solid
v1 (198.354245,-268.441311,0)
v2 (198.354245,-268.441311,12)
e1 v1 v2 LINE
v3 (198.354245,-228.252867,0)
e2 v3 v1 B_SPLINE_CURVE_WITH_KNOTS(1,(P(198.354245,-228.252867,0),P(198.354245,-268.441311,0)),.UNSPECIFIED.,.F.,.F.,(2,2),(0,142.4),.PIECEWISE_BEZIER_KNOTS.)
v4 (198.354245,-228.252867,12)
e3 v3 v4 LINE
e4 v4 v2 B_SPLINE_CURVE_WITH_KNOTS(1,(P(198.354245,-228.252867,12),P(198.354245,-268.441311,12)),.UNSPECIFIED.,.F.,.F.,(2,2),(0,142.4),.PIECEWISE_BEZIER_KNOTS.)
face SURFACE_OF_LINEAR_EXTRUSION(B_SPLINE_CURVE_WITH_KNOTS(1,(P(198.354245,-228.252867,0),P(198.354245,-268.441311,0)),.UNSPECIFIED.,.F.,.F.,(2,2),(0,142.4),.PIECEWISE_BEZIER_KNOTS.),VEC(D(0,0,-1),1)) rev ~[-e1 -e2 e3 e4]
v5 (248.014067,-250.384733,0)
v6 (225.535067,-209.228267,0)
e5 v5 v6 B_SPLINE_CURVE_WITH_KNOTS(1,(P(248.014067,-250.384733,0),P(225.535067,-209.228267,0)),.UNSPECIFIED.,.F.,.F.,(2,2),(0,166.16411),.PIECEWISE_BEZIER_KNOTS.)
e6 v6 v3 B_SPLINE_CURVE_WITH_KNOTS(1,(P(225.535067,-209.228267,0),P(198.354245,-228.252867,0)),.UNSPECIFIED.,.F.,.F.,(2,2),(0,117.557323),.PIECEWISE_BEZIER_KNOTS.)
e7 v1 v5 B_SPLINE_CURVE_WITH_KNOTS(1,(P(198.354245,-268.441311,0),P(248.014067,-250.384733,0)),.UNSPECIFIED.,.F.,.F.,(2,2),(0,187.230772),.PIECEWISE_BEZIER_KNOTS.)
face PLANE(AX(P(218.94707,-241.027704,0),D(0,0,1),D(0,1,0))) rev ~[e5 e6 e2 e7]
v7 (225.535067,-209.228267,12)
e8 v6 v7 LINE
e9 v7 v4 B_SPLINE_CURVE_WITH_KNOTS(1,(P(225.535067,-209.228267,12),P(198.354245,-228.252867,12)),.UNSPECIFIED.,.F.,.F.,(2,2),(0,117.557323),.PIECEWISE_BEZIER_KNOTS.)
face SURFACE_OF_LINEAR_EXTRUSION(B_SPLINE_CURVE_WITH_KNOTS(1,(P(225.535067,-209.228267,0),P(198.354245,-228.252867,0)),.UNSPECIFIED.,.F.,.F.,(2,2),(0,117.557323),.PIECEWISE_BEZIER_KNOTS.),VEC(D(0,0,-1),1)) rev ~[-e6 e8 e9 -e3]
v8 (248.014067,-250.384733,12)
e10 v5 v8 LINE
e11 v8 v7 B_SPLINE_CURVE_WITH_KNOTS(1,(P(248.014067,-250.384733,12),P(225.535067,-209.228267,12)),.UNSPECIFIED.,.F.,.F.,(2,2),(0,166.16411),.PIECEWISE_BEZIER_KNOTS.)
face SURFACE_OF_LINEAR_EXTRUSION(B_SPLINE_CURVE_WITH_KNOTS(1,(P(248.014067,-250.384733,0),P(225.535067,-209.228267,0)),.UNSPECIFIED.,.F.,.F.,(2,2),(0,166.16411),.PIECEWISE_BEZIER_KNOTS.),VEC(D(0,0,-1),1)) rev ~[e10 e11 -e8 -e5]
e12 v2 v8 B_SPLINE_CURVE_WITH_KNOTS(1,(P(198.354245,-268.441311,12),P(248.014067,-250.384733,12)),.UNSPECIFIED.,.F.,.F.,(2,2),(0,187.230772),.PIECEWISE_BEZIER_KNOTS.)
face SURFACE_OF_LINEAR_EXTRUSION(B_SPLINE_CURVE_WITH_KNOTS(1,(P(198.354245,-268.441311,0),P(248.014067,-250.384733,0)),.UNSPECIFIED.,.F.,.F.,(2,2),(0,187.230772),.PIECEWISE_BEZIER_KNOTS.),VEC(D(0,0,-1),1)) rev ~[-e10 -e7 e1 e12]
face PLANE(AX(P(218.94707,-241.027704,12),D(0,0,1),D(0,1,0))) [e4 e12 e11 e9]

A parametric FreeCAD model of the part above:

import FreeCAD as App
import Part
import Sketcher

V = App.Vector

doc = App.newDocument("Part")
body = doc.addObject("PartDesign::Body", "Body")

sketch1 = body.newObject("Sketcher::SketchObject", "Sketch")
sketch1.AttachmentSupport = (doc.getObject("XY_Plane"), [""])
sketch1.MapMode = "FlatFace"
sketch1.addGeometry(Part.BSplineCurve([V(198.354245, -228.252867, 0), V(198.354245, -268.441311, 0)], [2, 2], [0, 142.4], False, 1, [1, 1], False), False)
sketch1.addGeometry(Part.BSplineCurve([V(198.354245, -268.441311, 0), V(248.014067, -250.384733, 0)], [2, 2], [0, 187.230772], False, 1, [1, 1], False), False)
sketch1.addGeometry(Part.BSplineCurve([V(248.014067, -250.384733, 0), V(225.535067, -209.228267, 0)], [2, 2], [0, 166.16411], False, 1, [1, 1], False), False)
sketch1.addGeometry(Part.BSplineCurve([V(225.535067, -209.228267, 0), V(198.354245, -228.252867, 0)], [2, 2], [0, 117.557323], False, 1, [1, 1], False), False)
sketch1.addConstraint(Sketcher.Constraint("Block", 0))
sketch1.addConstraint(Sketcher.Constraint("Block", 1))
sketch1.addConstraint(Sketcher.Constraint("Block", 2))
sketch1.addConstraint(Sketcher.Constraint("Block", 3))
pad1 = body.newObject("PartDesign::Pad", "Pad")
pad1.Profile = sketch1
pad1.Length = 12

doc.recompute()
